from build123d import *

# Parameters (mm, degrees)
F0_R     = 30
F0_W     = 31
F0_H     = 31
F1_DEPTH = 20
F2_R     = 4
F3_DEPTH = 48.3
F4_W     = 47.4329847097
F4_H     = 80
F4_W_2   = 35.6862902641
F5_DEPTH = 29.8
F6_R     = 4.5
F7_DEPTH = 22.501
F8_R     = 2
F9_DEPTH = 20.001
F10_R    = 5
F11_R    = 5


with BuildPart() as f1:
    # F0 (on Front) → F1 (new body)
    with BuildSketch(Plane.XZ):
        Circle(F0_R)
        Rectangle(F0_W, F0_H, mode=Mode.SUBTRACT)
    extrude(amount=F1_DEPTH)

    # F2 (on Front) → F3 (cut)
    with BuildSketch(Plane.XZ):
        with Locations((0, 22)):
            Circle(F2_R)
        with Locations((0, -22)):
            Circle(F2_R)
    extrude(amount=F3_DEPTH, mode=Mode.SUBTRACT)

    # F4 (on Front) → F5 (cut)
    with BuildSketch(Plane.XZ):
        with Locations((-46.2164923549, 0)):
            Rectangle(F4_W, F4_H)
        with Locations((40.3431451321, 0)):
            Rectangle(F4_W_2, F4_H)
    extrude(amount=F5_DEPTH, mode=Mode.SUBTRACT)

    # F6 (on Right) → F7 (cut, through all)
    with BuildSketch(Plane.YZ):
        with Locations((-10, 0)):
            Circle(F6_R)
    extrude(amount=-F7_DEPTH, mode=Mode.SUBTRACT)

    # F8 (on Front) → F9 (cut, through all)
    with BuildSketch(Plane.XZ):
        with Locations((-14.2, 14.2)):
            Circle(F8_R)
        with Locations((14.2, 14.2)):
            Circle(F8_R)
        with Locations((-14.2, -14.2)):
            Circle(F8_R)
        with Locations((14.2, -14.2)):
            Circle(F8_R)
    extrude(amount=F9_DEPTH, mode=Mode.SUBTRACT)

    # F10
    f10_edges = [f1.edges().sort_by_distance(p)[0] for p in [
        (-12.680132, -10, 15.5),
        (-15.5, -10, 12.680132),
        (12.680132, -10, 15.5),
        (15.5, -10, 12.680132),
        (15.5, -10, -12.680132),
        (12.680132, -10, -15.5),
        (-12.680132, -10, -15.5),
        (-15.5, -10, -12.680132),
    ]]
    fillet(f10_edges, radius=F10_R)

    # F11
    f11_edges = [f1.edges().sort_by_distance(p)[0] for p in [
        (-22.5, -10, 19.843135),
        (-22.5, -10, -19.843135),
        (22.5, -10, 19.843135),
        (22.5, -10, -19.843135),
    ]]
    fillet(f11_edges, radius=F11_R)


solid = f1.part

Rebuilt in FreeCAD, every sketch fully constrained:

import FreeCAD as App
import Part
import Sketcher
from FreeCAD import Vector
Q = App.Units.Quantity


def edges_at(feature, points):
    """Names of the edges that pass closest to the given points."""
    edges = feature.Shape.Edges
    near = lambda p: min(range(len(edges)), key=lambda i: edges[i].distToShape(Part.Vertex(*p))[0])
    return sorted({f"Edge{near(p) + 1}" for p in points})


def add_polygon(sketch, points):
    """Adds a closed chain of lines whose ends are joined by coincident constraints."""
    first, n = sketch.GeometryCount, len(points)
    for a, b in zip(points, points[1:] + points[:1]):
        sketch.addGeometry(Part.LineSegment(App.Vector(*a, 0), App.Vector(*b, 0)), False)
    for i in range(n):
        sketch.addConstraint(Sketcher.Constraint("Coincident", first + i, 2, first + (i + 1) % n, 1))

doc = App.newDocument("Part")
params = doc.addObject("Spreadsheet::Sheet", "Params")
for row, (alias, value) in enumerate([
    ("sketch1_diameter", "60 mm"),
    ("sketch1_width", "31 mm"),
    ("pad1_length", "20 mm"),
    ("sketch2_diameter", "8 mm"),
    ("pocket1_length", "48.3 mm"),
    ("sketch3_height", "80 mm"),
    ("pocket2_length", "29.8 mm"),
    ("sketch4_diameter", "9 mm"),
    ("sketch5_diameter", "4 mm"),
    ("fillet_radius", "5 mm"),
    ("fillet2_radius", "5 mm"),
], start=1):
    params.set(f"A{row}", alias)
    params.set(f"B{row}", "=" + value)
    params.setAlias(f"B{row}", alias)

body = doc.addObject("PartDesign::Body", "Body")

# Sketch on XZ plane
sketch1 = doc.addObject("Sketcher::SketchObject", "Sketch")
body.addObject(sketch1)
sketch1.AttachmentSupport = (doc.XZ_Plane, [""])
sketch1.MapMode = "FlatFace"
sketch1.addGeometry(Part.Circle(Vector(0, 0, 0), Vector(0, 0, 1), 30), False)  # 0
add_polygon(sketch1, [(16, -16), (-16, -16), (-16, 16), (16, 16)])  # lines 1-4
sketch1.addConstraint([
    Sketcher.Constraint("Horizontal", 1),
    Sketcher.Constraint("Vertical", 2),
    Sketcher.Constraint("Horizontal", 3),
    Sketcher.Constraint("Vertical", 4),
    Sketcher.Constraint("Coincident", 0, 3, -1, 1),
    Sketcher.Constraint("Symmetric", 1, 2, 3, 2, -1, 1),
    Sketcher.Constraint("Equal", 3, 2),
    Sketcher.Constraint("Diameter", 0, Q("60 mm")),
    Sketcher.Constraint("DistanceX", 1, 2, 1, 1, Q("31 mm")),
])
sketch1.setExpression("Constraints[11]", "Params.sketch1_diameter")
sketch1.setExpression("Constraints[12]", "Params.sketch1_width")
pad1 = doc.addObject("PartDesign::Pad", "Pad")
body.addObject(pad1)
pad1.Profile = sketch1
pad1.setExpression("Length", "Params.pad1_length")

# Sketch on XZ plane
sketch2 = doc.addObject("Sketcher::SketchObject", "Sketch001")
body.addObject(sketch2)
sketch2.AttachmentSupport = (doc.XZ_Plane, [""])
sketch2.MapMode = "FlatFace"
sketch2.addGeometry([
    Part.Circle(Vector(0, 22, 0), Vector(0, 0, 1), 4),
    Part.Circle(Vector(0, -22, 0), Vector(0, 0, 1), 4),
], False)
sketch2.addConstraint([
    Sketcher.Constraint("Equal", 0, 1),
    Sketcher.Constraint("Symmetric", 0, 3, 1, 3, -1, 1),
    Sketcher.Constraint("PointOnObject", 0, 3, -2),
    Sketcher.Constraint("Diameter", 0, Q("8 mm")),
    Sketcher.Constraint("DistanceY", -1, 1, 0, 3, Q("22 mm")),
])
sketch2.setExpression("Constraints[3]", "Params.sketch2_diameter")
pocket1 = doc.addObject("PartDesign::Pocket", "Pocket")
body.addObject(pocket1)
pocket1.Profile = sketch2
pocket1.setExpression("Length", "Params.pocket1_length")
pocket1.Reversed = True

# Sketch on XZ plane
sketch3 = doc.addObject("Sketcher::SketchObject", "Sketch002")
body.addObject(sketch3)
sketch3.AttachmentSupport = (doc.XZ_Plane, [""])
sketch3.MapMode = "FlatFace"
add_polygon(sketch3, [(-70, 40), (-70, -40), (-22, -40), (-22, 40)])  # lines 0-3
add_polygon(sketch3, [(22, 40), (22, -40), (58, -40), (58, 40)])  # lines 4-7
sketch3.addConstraint([
    Sketcher.Constraint("Vertical", 0),
    Sketcher.Constraint("Horizontal", 1),
    Sketcher.Constraint("Vertical", 2),
    Sketcher.Constraint("Horizontal", 3),
    Sketcher.Constraint("Vertical", 4),
    Sketcher.Constraint("Horizontal", 5),
    Sketcher.Constraint("Vertical", 6),
    Sketcher.Constraint("Horizontal", 7),
    Sketcher.Constraint("Symmetric", 2, 2, 4, 2, -1, 1),
    Sketcher.Constraint("Horizontal", 1, 2, 4, 2),
    Sketcher.Constraint("Horizontal", 3, 2, 6, 2),
    Sketcher.Constraint("DistanceY", 0, 2, 0, 1, Q("80 mm")),
    Sketcher.Constraint("DistanceX", 1, 2, 4, 2, Q("45 mm")),
    Sketcher.Constraint("DistanceX", 5, 1, 5, 2, Q("35.68629 mm")),
    Sketcher.Constraint("DistanceX", 1, 1, 1, 2, Q("47.432985 mm")),
])
sketch3.setExpression("Constraints[19]", "Params.sketch3_height")
pocket2 = doc.addObject("PartDesign::Pocket", "Pocket001")
body.addObject(pocket2)
pocket2.Profile = sketch3
pocket2.setExpression("Length", "Params.pocket2_length")
pocket2.Reversed = True

# Sketch on YZ plane
sketch4 = doc.addObject("Sketcher::SketchObject", "Sketch003")
body.addObject(sketch4)
sketch4.AttachmentSupport = (doc.YZ_Plane, [""])
sketch4.MapMode = "FlatFace"
sketch4.addGeometry(Part.Circle(Vector(-10, 0, 0), Vector(0, 0, 1), 4.5), False)
sketch4.addConstraint([
    Sketcher.Constraint("PointOnObject", 0, 3, -1),
    Sketcher.Constraint("Diameter", 0, Q("9 mm")),
    Sketcher.Constraint("DistanceX", 0, 3, -1, 1, Q("10 mm")),
])
sketch4.setExpression("Constraints[1]", "Params.sketch4_diameter")
pocket3 = doc.addObject("PartDesign::Pocket", "Pocket002")
body.addObject(pocket3)
pocket3.Profile = sketch4
pocket3.Type = "ThroughAll"

# Sketch on XZ plane
sketch5 = doc.addObject("Sketcher::SketchObject", "Sketch004")
body.addObject(sketch5)
sketch5.AttachmentSupport = (doc.XZ_Plane, [""])
sketch5.MapMode = "FlatFace"
sketch5.addGeometry([
    Part.Circle(Vector(-14.2, 14.2, 0), Vector(0, 0, 1), 2),
    Part.Circle(Vector(14.2, 14.2, 0), Vector(0, 0, 1), 2),
    Part.Circle(Vector(-14.2, -14.2, 0), Vector(0, 0, 1), 2),
    Part.Circle(Vector(14.2, -14.2, 0), Vector(0, 0, 1), 2),
], False)
sketch5.addConstraint([
    Sketcher.Constraint("Equal", 0, 1),
    Sketcher.Constraint("Equal", 1, 2),
    Sketcher.Constraint("Equal", 2, 3),
    Sketcher.Constraint("Symmetric", 1, 3, 2, 3, -1, 1),
    Sketcher.Constraint("Symmetric", 0, 3, 3, 3, -1, 1),
    Sketcher.Constraint("Symmetric", 0, 3, 1, 3, -2),
    Sketcher.Constraint("Diameter", 0, Q("4 mm")),
    Sketcher.Constraint("DistanceX", 0, 3, -1, 1, Q("14.2 mm")),
    Sketcher.Constraint("DistanceY", -1, 1, 0, 3, Q("14.2 mm")),
])
sketch5.setExpression("Constraints[6]", "Params.sketch5_diameter")
pocket4 = doc.addObject("PartDesign::Pocket", "Pocket003")
body.addObject(pocket4)
pocket4.Profile = sketch5
pocket4.Type = "ThroughAll"
pocket4.Reversed = True
doc.recompute()

fillet = doc.addObject("PartDesign::Fillet", "Fillet")
body.addObject(fillet)
fillet.Base = (pocket4, edges_at(pocket4, [
    (-12.68, -10, 15.5),
    (-15.5, -10, 12.68),
    (12.68, -10, 15.5),
    (15.5, -10, 12.68),
    (15.5, -10, -12.68),
    (12.68, -10, -15.5),
    (-12.68, -10, -15.5),
    (-15.5, -10, -12.68),
]))
fillet.setExpression("Radius", "Params.fillet_radius")
doc.recompute()

fillet2 = doc.addObject("PartDesign::Fillet", "Fillet001")
body.addObject(fillet2)
fillet2.Base = (fillet, edges_at(fillet, [
    (-22.5, -10, 19.843),
    (-22.5, -10, -19.843),
    (22.5, -10, 19.843),
    (22.5, -10, -19.843),
]))
fillet2.setExpression("Radius", "Params.fillet2_radius")

doc.recompute()
